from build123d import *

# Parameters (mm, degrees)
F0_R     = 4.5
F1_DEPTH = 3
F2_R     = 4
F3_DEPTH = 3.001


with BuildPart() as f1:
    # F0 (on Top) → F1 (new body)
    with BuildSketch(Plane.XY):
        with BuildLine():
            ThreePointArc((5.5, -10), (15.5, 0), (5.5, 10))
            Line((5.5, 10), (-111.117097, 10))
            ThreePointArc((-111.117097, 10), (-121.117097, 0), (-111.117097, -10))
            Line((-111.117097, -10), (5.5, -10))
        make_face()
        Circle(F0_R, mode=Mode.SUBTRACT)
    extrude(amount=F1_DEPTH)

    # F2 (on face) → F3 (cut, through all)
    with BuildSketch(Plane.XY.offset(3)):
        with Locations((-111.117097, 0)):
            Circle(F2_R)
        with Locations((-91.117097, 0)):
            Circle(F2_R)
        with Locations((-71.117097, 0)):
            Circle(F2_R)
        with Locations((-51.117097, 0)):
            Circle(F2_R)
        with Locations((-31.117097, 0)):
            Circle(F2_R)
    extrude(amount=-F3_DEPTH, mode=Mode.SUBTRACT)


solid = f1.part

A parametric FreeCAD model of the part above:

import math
import FreeCAD as App
import Part
import Sketcher
Q = App.Units.Quantity

doc = App.newDocument("Part")
params = doc.addObject("Spreadsheet::Sheet", "Params")
for row, (alias, value) in enumerate([
    ("sketch1_diameter", "9 mm"),
    ("sketch1_radius", "10 mm"),
    ("pad1_length", "3 mm"),
    ("sketch2_diameter", "8 mm"),
], start=1):
    params.set(f"A{row}", alias)
    params.set(f"B{row}", "=" + value)
    params.setAlias(f"B{row}", alias)

body = doc.addObject("PartDesign::Body", "Body")

# Sketch on XY plane
sketch1 = body.newObject("Sketcher::SketchObject", "Sketch")
sketch1.AttachmentSupport = (doc.getObject("XY_Plane"), [""])
sketch1.MapMode = "FlatFace"
sketch1.addGeometry(Part.ArcOfCircle(Part.Circle(App.Vector(5.5, 0, 0), App.Vector(0, 0, 1), 10), math.radians(-90), math.radians(90)), False)
sketch1.addGeometry(Part.LineSegment(App.Vector(5.5, 10, 0), App.Vector(-111.1, 10, 0)), False)
sketch1.addGeometry(Part.ArcOfCircle(Part.Circle(App.Vector(-111.1, 0, 0), App.Vector(0, 0, 1), 10), math.radians(90), math.radians(270)), False)
sketch1.addGeometry(Part.LineSegment(App.Vector(-111.1, -10, 0), App.Vector(5.5, -10, 0)), False)
sketch1.addGeometry(Part.Circle(App.Vector(0, 0, 0), App.Vector(0, 0, 1), 4.5), False)
sketch1.addConstraint(Sketcher.Constraint("Tangent", 0, 2, 1, 1))
sketch1.addConstraint(Sketcher.Constraint("Tangent", 1, 2, 2, 1))
sketch1.addConstraint(Sketcher.Constraint("Tangent", 2, 2, 3, 1))
sketch1.addConstraint(Sketcher.Constraint("Tangent", 3, 2, 0, 1))
sketch1.addConstraint(Sketcher.Constraint("Horizontal", 1))
sketch1.addConstraint(Sketcher.Constraint("Horizontal", 3))
sketch1.addConstraint(Sketcher.Constraint("Coincident", 4, 3, -1, 1))
sketch1.addConstraint(Sketcher.Constraint("PointOnObject", 0, 3, -1))
sketch1.addConstraint(Sketcher.Constraint("Diameter", 4, Q("9 mm")))
sketch1.addConstraint(Sketcher.Constraint("Radius", 0, Q("10 mm")))
sketch1.addConstraint(Sketcher.Constraint("DistanceX", -1, 1, 0, 3, Q("5.5 mm")))
sketch1.addConstraint(Sketcher.Constraint("DistanceX", 1, 2, 1, 1, Q("116.617097 mm")))
sketch1.setExpression("Constraints[8]", "Params.sketch1_diameter")
sketch1.setExpression("Constraints[9]", "Params.sketch1_radius")
pad1 = body.newObject("PartDesign::Pad", "Pad")
pad1.Profile = sketch1
pad1.setExpression("Length", "Params.pad1_length")

# Sketch on XY plane
sketch2 = body.newObject("Sketcher::SketchObject", "Sketch001")
sketch2.AttachmentSupport = (doc.getObject("XY_Plane"), [""])
sketch2.MapMode = "FlatFace"
sketch2.AttachmentOffset = App.Placement(App.Vector(0, 0, 3), App.Rotation())
sketch2.addGeometry(Part.Circle(App.Vector(-111.1, 0, 0), App.Vector(0, 0, 1), 4), False)
sketch2.addGeometry(Part.Circle(App.Vector(-91.1, 0, 0), App.Vector(0, 0, 1), 4), False)
sketch2.addGeometry(Part.Circle(App.Vector(-71.1, 0, 0), App.Vector(0, 0, 1), 4), False)
sketch2.addGeometry(Part.Circle(App.Vector(-51.1, 0, 0), App.Vector(0, 0, 1), 4), False)
sketch2.addGeometry(Part.Circle(App.Vector(-31.1, 0, 0), App.Vector(0, 0, 1), 4), False)
sketch2.addConstraint(Sketcher.Constraint("Equal", 0, 1))
sketch2.addConstraint(Sketcher.Constraint("Equal", 1, 2))
sketch2.addConstraint(Sketcher.Constraint("Equal", 2, 3))
sketch2.addConstraint(Sketcher.Constraint("Equal", 3, 4))
sketch2.addConstraint(Sketcher.Constraint("PointOnObject", 0, 3, -1))
sketch2.addConstraint(Sketcher.Constraint("PointOnObject", 1, 3, -1))
sketch2.addConstraint(Sketcher.Constraint("PointOnObject", 2, 3, -1))
sketch2.addConstraint(Sketcher.Constraint("PointOnObject", 3, 3, -1))
sketch2.addConstraint(Sketcher.Constraint("PointOnObject", 4, 3, -1))
sketch2.addConstraint(Sketcher.Constraint("Diameter", 0, Q("8 mm")))
sketch2.addConstraint(Sketcher.Constraint("DistanceX", 0, 3, 1, 3, Q("20 mm")))
sketch2.addConstraint(Sketcher.Constraint("DistanceX", 1, 3, 2, 3, Q("20 mm")))
sketch2.addConstraint(Sketcher.Constraint("DistanceX", 2, 3, 3, 3, Q("20 mm")))
sketch2.addConstraint(Sketcher.Constraint("DistanceX", 3, 3, 4, 3, Q("20 mm")))
sketch2.addConstraint(Sketcher.Constraint("DistanceX", 0, 3, -1, 1, Q("111.117097 mm")))
sketch2.setExpression("Constraints[9]", "Params.sketch2_diameter")
pocket1 = body.newObject("PartDesign::Pocket", "Pocket")
pocket1.Profile = sketch2
pocket1.Type = "ThroughAll"

doc.recompute()
